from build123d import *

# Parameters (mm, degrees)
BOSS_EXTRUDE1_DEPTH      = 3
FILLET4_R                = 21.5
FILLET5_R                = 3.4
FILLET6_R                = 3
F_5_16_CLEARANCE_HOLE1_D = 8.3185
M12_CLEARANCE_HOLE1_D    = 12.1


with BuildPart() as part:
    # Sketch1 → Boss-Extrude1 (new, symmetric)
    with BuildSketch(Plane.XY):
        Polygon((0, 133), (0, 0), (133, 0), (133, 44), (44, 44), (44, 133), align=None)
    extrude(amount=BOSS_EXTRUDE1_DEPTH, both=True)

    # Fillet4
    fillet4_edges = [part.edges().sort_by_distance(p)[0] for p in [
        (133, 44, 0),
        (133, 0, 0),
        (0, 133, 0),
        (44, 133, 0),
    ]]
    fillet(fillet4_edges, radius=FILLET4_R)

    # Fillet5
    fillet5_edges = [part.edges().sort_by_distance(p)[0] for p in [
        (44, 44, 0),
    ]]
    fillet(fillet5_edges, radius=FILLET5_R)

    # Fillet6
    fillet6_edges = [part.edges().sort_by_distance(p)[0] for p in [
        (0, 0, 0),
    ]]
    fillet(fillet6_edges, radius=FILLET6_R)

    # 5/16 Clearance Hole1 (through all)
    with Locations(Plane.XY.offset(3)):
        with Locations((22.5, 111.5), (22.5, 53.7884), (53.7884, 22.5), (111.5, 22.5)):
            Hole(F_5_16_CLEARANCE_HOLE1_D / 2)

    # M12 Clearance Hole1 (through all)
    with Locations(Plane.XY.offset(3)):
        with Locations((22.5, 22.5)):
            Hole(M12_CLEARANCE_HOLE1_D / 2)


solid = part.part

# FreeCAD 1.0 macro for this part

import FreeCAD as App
import Part
import Sketcher

V = App.Vector


def edges_at(feature, points):
    """Names of the edges that pass closest to the given points."""
    edges = feature.Shape.Edges
    near = lambda p: min(range(len(edges)), key=lambda i: edges[i].distToShape(Part.Vertex(*p))[0])
    return sorted({f"Edge{near(p) + 1}" for p in points})


def add_polygon(sketch, points):
    """Adds a closed chain of lines whose ends are joined by coincident constraints."""
    first, n = sketch.GeometryCount, len(points)
    for a, b in zip(points, points[1:] + points[:1]):
        sketch.addGeometry(Part.LineSegment(App.Vector(*a, 0), App.Vector(*b, 0)), False)
    for i in range(n):
        sketch.addConstraint(Sketcher.Constraint("Coincident", first + i, 2, first + (i + 1) % n, 1))

doc = App.newDocument("Part")
body = doc.addObject("PartDesign::Body", "Body")

# Sketch on XY plane
sketch1 = body.newObject("Sketcher::SketchObject", "Sketch")
sketch1.AttachmentSupport = (doc.getObject("XY_Plane"), [""])
sketch1.MapMode = "FlatFace"
add_polygon(sketch1, [(0, 133), (0, 0), (133, 0), (133, 44), (44, 44), (44, 133)])  # lines 0-5
sketch1.addConstraint(Sketcher.Constraint("Vertical", 0))
sketch1.addConstraint(Sketcher.Constraint("Horizontal", 1))
sketch1.addConstraint(Sketcher.Constraint("Vertical", 2))
sketch1.addConstraint(Sketcher.Constraint("Horizontal", 3))
sketch1.addConstraint(Sketcher.Constraint("Vertical", 4))
sketch1.addConstraint(Sketcher.Constraint("Horizontal", 5))
sketch1.addConstraint(Sketcher.Constraint("Coincident", 0, 2, -1, 1))
sketch1.addConstraint(Sketcher.Constraint("Equal", 1, 0))
sketch1.addConstraint(Sketcher.Constraint("Equal", 5, 2))
sketch1.addConstraint(Sketcher.Constraint("DistanceX", 1, 1, 1, 2, 133.0))
sketch1.addConstraint(Sketcher.Constraint("DistanceX", 3, 2, 3, 1, 89.0))
pad1 = body.newObject("PartDesign::Pad", "Pad")
pad1.Profile = sketch1
pad1.Length = 6
pad1.Midplane = True
doc.recompute()

fillet = body.newObject("PartDesign::Fillet", "Fillet")
fillet.Base = (pad1, edges_at(pad1, [
    (133, 44, 0),
    (133, 0, 0),
    (0, 133, 0),
    (44, 133, 0),
]))
fillet.Radius = 21.5
doc.recompute()

fillet2 = body.newObject("PartDesign::Fillet", "Fillet001")
fillet2.Base = (fillet, edges_at(fillet, [(44, 44, 0)]))
fillet2.Radius = 3.4
doc.recompute()

fillet3 = body.newObject("PartDesign::Fillet", "Fillet002")
fillet3.Base = (fillet2, edges_at(fillet2, [(0, 0, 0)]))
fillet3.Radius = 3

# Sketch on XY plane
sketch2 = body.newObject("Sketcher::SketchObject", "Sketch001")
sketch2.AttachmentSupport = (doc.getObject("XY_Plane"), [""])
sketch2.MapMode = "FlatFace"
sketch2.AttachmentOffset = App.Placement(V(0, 0, 3), App.Rotation())
sketch2.addGeometry(Part.Circle(V(22.5, 111.5, 0), V(0, 0, 1), 4.2), False)
sketch2.addGeometry(Part.Circle(V(22.5, 53.8, 0), V(0, 0, 1), 4.2), False)
sketch2.addGeometry(Part.Circle(V(53.8, 22.5, 0), V(0, 0, 1), 4.2), False)
sketch2.addGeometry(Part.Circle(V(111.5, 22.5, 0), V(0, 0, 1), 4.2), False)
sketch2.addConstraint(Sketcher.Constraint("Equal", 0, 1))
sketch2.addConstraint(Sketcher.Constraint("Equal", 1, 2))
sketch2.addConstraint(Sketcher.Constraint("Equal", 2, 3))
sketch2.addConstraint(Sketcher.Constraint("Horizontal", 2, 3, 3, 3))
sketch2.addConstraint(Sketcher.Constraint("Vertical", 0, 3, 1, 3))
sketch2.addConstraint(Sketcher.Constraint("DistanceY", 2, 3, 0, 3, 89.0))
sketch2.addConstraint(Sketcher.Constraint("DistanceX", 1, 3, 3, 3, 89.0))
sketch2.addConstraint(Sketcher.Constraint("Diameter", 0, 8.3185))
sketch2.addConstraint(Sketcher.Constraint("DistanceX", -1, 1, 0, 3, 22.5))
sketch2.addConstraint(Sketcher.Constraint("DistanceY", -1, 1, 0, 3, 111.5))
sketch2.addConstraint(Sketcher.Constraint("DistanceY", -1, 1, 1, 3, 53.7884))
sketch2.addConstraint(Sketcher.Constraint("DistanceX", -1, 1, 2, 3, 53.7884))
doc.recompute()
hole = body.newObject("PartDesign::Hole", "Hole")
hole.Profile = sketch2
hole.ThreadType = "None"
hole.Diameter = 8.3185
hole.DepthType = "ThroughAll"

# Sketch on XY plane
sketch3 = body.newObject("Sketcher::SketchObject", "Sketch002")
sketch3.AttachmentSupport = (doc.getObject("XY_Plane"), [""])
sketch3.MapMode = "FlatFace"
sketch3.AttachmentOffset = App.Placement(V(0, 0, 3), App.Rotation())
sketch3.addGeometry(Part.Circle(V(22, 22, 0), V(0, 0, 1), 6), False)
sketch3.addConstraint(Sketcher.Constraint("Diameter", 0, 12.1))
sketch3.addConstraint(Sketcher.Constraint("DistanceX", -1, 1, 0, 3, 22.5))
sketch3.addConstraint(Sketcher.Constraint("DistanceY", -1, 1, 0, 3, 22.5))
doc.recompute()
hole2 = body.newObject("PartDesign::Hole", "Hole001")
hole2.Profile = sketch3
hole2.ThreadType = "None"
hole2.Diameter = 12.1
hole2.DepthType = "ThroughAll"

doc.recompute()
